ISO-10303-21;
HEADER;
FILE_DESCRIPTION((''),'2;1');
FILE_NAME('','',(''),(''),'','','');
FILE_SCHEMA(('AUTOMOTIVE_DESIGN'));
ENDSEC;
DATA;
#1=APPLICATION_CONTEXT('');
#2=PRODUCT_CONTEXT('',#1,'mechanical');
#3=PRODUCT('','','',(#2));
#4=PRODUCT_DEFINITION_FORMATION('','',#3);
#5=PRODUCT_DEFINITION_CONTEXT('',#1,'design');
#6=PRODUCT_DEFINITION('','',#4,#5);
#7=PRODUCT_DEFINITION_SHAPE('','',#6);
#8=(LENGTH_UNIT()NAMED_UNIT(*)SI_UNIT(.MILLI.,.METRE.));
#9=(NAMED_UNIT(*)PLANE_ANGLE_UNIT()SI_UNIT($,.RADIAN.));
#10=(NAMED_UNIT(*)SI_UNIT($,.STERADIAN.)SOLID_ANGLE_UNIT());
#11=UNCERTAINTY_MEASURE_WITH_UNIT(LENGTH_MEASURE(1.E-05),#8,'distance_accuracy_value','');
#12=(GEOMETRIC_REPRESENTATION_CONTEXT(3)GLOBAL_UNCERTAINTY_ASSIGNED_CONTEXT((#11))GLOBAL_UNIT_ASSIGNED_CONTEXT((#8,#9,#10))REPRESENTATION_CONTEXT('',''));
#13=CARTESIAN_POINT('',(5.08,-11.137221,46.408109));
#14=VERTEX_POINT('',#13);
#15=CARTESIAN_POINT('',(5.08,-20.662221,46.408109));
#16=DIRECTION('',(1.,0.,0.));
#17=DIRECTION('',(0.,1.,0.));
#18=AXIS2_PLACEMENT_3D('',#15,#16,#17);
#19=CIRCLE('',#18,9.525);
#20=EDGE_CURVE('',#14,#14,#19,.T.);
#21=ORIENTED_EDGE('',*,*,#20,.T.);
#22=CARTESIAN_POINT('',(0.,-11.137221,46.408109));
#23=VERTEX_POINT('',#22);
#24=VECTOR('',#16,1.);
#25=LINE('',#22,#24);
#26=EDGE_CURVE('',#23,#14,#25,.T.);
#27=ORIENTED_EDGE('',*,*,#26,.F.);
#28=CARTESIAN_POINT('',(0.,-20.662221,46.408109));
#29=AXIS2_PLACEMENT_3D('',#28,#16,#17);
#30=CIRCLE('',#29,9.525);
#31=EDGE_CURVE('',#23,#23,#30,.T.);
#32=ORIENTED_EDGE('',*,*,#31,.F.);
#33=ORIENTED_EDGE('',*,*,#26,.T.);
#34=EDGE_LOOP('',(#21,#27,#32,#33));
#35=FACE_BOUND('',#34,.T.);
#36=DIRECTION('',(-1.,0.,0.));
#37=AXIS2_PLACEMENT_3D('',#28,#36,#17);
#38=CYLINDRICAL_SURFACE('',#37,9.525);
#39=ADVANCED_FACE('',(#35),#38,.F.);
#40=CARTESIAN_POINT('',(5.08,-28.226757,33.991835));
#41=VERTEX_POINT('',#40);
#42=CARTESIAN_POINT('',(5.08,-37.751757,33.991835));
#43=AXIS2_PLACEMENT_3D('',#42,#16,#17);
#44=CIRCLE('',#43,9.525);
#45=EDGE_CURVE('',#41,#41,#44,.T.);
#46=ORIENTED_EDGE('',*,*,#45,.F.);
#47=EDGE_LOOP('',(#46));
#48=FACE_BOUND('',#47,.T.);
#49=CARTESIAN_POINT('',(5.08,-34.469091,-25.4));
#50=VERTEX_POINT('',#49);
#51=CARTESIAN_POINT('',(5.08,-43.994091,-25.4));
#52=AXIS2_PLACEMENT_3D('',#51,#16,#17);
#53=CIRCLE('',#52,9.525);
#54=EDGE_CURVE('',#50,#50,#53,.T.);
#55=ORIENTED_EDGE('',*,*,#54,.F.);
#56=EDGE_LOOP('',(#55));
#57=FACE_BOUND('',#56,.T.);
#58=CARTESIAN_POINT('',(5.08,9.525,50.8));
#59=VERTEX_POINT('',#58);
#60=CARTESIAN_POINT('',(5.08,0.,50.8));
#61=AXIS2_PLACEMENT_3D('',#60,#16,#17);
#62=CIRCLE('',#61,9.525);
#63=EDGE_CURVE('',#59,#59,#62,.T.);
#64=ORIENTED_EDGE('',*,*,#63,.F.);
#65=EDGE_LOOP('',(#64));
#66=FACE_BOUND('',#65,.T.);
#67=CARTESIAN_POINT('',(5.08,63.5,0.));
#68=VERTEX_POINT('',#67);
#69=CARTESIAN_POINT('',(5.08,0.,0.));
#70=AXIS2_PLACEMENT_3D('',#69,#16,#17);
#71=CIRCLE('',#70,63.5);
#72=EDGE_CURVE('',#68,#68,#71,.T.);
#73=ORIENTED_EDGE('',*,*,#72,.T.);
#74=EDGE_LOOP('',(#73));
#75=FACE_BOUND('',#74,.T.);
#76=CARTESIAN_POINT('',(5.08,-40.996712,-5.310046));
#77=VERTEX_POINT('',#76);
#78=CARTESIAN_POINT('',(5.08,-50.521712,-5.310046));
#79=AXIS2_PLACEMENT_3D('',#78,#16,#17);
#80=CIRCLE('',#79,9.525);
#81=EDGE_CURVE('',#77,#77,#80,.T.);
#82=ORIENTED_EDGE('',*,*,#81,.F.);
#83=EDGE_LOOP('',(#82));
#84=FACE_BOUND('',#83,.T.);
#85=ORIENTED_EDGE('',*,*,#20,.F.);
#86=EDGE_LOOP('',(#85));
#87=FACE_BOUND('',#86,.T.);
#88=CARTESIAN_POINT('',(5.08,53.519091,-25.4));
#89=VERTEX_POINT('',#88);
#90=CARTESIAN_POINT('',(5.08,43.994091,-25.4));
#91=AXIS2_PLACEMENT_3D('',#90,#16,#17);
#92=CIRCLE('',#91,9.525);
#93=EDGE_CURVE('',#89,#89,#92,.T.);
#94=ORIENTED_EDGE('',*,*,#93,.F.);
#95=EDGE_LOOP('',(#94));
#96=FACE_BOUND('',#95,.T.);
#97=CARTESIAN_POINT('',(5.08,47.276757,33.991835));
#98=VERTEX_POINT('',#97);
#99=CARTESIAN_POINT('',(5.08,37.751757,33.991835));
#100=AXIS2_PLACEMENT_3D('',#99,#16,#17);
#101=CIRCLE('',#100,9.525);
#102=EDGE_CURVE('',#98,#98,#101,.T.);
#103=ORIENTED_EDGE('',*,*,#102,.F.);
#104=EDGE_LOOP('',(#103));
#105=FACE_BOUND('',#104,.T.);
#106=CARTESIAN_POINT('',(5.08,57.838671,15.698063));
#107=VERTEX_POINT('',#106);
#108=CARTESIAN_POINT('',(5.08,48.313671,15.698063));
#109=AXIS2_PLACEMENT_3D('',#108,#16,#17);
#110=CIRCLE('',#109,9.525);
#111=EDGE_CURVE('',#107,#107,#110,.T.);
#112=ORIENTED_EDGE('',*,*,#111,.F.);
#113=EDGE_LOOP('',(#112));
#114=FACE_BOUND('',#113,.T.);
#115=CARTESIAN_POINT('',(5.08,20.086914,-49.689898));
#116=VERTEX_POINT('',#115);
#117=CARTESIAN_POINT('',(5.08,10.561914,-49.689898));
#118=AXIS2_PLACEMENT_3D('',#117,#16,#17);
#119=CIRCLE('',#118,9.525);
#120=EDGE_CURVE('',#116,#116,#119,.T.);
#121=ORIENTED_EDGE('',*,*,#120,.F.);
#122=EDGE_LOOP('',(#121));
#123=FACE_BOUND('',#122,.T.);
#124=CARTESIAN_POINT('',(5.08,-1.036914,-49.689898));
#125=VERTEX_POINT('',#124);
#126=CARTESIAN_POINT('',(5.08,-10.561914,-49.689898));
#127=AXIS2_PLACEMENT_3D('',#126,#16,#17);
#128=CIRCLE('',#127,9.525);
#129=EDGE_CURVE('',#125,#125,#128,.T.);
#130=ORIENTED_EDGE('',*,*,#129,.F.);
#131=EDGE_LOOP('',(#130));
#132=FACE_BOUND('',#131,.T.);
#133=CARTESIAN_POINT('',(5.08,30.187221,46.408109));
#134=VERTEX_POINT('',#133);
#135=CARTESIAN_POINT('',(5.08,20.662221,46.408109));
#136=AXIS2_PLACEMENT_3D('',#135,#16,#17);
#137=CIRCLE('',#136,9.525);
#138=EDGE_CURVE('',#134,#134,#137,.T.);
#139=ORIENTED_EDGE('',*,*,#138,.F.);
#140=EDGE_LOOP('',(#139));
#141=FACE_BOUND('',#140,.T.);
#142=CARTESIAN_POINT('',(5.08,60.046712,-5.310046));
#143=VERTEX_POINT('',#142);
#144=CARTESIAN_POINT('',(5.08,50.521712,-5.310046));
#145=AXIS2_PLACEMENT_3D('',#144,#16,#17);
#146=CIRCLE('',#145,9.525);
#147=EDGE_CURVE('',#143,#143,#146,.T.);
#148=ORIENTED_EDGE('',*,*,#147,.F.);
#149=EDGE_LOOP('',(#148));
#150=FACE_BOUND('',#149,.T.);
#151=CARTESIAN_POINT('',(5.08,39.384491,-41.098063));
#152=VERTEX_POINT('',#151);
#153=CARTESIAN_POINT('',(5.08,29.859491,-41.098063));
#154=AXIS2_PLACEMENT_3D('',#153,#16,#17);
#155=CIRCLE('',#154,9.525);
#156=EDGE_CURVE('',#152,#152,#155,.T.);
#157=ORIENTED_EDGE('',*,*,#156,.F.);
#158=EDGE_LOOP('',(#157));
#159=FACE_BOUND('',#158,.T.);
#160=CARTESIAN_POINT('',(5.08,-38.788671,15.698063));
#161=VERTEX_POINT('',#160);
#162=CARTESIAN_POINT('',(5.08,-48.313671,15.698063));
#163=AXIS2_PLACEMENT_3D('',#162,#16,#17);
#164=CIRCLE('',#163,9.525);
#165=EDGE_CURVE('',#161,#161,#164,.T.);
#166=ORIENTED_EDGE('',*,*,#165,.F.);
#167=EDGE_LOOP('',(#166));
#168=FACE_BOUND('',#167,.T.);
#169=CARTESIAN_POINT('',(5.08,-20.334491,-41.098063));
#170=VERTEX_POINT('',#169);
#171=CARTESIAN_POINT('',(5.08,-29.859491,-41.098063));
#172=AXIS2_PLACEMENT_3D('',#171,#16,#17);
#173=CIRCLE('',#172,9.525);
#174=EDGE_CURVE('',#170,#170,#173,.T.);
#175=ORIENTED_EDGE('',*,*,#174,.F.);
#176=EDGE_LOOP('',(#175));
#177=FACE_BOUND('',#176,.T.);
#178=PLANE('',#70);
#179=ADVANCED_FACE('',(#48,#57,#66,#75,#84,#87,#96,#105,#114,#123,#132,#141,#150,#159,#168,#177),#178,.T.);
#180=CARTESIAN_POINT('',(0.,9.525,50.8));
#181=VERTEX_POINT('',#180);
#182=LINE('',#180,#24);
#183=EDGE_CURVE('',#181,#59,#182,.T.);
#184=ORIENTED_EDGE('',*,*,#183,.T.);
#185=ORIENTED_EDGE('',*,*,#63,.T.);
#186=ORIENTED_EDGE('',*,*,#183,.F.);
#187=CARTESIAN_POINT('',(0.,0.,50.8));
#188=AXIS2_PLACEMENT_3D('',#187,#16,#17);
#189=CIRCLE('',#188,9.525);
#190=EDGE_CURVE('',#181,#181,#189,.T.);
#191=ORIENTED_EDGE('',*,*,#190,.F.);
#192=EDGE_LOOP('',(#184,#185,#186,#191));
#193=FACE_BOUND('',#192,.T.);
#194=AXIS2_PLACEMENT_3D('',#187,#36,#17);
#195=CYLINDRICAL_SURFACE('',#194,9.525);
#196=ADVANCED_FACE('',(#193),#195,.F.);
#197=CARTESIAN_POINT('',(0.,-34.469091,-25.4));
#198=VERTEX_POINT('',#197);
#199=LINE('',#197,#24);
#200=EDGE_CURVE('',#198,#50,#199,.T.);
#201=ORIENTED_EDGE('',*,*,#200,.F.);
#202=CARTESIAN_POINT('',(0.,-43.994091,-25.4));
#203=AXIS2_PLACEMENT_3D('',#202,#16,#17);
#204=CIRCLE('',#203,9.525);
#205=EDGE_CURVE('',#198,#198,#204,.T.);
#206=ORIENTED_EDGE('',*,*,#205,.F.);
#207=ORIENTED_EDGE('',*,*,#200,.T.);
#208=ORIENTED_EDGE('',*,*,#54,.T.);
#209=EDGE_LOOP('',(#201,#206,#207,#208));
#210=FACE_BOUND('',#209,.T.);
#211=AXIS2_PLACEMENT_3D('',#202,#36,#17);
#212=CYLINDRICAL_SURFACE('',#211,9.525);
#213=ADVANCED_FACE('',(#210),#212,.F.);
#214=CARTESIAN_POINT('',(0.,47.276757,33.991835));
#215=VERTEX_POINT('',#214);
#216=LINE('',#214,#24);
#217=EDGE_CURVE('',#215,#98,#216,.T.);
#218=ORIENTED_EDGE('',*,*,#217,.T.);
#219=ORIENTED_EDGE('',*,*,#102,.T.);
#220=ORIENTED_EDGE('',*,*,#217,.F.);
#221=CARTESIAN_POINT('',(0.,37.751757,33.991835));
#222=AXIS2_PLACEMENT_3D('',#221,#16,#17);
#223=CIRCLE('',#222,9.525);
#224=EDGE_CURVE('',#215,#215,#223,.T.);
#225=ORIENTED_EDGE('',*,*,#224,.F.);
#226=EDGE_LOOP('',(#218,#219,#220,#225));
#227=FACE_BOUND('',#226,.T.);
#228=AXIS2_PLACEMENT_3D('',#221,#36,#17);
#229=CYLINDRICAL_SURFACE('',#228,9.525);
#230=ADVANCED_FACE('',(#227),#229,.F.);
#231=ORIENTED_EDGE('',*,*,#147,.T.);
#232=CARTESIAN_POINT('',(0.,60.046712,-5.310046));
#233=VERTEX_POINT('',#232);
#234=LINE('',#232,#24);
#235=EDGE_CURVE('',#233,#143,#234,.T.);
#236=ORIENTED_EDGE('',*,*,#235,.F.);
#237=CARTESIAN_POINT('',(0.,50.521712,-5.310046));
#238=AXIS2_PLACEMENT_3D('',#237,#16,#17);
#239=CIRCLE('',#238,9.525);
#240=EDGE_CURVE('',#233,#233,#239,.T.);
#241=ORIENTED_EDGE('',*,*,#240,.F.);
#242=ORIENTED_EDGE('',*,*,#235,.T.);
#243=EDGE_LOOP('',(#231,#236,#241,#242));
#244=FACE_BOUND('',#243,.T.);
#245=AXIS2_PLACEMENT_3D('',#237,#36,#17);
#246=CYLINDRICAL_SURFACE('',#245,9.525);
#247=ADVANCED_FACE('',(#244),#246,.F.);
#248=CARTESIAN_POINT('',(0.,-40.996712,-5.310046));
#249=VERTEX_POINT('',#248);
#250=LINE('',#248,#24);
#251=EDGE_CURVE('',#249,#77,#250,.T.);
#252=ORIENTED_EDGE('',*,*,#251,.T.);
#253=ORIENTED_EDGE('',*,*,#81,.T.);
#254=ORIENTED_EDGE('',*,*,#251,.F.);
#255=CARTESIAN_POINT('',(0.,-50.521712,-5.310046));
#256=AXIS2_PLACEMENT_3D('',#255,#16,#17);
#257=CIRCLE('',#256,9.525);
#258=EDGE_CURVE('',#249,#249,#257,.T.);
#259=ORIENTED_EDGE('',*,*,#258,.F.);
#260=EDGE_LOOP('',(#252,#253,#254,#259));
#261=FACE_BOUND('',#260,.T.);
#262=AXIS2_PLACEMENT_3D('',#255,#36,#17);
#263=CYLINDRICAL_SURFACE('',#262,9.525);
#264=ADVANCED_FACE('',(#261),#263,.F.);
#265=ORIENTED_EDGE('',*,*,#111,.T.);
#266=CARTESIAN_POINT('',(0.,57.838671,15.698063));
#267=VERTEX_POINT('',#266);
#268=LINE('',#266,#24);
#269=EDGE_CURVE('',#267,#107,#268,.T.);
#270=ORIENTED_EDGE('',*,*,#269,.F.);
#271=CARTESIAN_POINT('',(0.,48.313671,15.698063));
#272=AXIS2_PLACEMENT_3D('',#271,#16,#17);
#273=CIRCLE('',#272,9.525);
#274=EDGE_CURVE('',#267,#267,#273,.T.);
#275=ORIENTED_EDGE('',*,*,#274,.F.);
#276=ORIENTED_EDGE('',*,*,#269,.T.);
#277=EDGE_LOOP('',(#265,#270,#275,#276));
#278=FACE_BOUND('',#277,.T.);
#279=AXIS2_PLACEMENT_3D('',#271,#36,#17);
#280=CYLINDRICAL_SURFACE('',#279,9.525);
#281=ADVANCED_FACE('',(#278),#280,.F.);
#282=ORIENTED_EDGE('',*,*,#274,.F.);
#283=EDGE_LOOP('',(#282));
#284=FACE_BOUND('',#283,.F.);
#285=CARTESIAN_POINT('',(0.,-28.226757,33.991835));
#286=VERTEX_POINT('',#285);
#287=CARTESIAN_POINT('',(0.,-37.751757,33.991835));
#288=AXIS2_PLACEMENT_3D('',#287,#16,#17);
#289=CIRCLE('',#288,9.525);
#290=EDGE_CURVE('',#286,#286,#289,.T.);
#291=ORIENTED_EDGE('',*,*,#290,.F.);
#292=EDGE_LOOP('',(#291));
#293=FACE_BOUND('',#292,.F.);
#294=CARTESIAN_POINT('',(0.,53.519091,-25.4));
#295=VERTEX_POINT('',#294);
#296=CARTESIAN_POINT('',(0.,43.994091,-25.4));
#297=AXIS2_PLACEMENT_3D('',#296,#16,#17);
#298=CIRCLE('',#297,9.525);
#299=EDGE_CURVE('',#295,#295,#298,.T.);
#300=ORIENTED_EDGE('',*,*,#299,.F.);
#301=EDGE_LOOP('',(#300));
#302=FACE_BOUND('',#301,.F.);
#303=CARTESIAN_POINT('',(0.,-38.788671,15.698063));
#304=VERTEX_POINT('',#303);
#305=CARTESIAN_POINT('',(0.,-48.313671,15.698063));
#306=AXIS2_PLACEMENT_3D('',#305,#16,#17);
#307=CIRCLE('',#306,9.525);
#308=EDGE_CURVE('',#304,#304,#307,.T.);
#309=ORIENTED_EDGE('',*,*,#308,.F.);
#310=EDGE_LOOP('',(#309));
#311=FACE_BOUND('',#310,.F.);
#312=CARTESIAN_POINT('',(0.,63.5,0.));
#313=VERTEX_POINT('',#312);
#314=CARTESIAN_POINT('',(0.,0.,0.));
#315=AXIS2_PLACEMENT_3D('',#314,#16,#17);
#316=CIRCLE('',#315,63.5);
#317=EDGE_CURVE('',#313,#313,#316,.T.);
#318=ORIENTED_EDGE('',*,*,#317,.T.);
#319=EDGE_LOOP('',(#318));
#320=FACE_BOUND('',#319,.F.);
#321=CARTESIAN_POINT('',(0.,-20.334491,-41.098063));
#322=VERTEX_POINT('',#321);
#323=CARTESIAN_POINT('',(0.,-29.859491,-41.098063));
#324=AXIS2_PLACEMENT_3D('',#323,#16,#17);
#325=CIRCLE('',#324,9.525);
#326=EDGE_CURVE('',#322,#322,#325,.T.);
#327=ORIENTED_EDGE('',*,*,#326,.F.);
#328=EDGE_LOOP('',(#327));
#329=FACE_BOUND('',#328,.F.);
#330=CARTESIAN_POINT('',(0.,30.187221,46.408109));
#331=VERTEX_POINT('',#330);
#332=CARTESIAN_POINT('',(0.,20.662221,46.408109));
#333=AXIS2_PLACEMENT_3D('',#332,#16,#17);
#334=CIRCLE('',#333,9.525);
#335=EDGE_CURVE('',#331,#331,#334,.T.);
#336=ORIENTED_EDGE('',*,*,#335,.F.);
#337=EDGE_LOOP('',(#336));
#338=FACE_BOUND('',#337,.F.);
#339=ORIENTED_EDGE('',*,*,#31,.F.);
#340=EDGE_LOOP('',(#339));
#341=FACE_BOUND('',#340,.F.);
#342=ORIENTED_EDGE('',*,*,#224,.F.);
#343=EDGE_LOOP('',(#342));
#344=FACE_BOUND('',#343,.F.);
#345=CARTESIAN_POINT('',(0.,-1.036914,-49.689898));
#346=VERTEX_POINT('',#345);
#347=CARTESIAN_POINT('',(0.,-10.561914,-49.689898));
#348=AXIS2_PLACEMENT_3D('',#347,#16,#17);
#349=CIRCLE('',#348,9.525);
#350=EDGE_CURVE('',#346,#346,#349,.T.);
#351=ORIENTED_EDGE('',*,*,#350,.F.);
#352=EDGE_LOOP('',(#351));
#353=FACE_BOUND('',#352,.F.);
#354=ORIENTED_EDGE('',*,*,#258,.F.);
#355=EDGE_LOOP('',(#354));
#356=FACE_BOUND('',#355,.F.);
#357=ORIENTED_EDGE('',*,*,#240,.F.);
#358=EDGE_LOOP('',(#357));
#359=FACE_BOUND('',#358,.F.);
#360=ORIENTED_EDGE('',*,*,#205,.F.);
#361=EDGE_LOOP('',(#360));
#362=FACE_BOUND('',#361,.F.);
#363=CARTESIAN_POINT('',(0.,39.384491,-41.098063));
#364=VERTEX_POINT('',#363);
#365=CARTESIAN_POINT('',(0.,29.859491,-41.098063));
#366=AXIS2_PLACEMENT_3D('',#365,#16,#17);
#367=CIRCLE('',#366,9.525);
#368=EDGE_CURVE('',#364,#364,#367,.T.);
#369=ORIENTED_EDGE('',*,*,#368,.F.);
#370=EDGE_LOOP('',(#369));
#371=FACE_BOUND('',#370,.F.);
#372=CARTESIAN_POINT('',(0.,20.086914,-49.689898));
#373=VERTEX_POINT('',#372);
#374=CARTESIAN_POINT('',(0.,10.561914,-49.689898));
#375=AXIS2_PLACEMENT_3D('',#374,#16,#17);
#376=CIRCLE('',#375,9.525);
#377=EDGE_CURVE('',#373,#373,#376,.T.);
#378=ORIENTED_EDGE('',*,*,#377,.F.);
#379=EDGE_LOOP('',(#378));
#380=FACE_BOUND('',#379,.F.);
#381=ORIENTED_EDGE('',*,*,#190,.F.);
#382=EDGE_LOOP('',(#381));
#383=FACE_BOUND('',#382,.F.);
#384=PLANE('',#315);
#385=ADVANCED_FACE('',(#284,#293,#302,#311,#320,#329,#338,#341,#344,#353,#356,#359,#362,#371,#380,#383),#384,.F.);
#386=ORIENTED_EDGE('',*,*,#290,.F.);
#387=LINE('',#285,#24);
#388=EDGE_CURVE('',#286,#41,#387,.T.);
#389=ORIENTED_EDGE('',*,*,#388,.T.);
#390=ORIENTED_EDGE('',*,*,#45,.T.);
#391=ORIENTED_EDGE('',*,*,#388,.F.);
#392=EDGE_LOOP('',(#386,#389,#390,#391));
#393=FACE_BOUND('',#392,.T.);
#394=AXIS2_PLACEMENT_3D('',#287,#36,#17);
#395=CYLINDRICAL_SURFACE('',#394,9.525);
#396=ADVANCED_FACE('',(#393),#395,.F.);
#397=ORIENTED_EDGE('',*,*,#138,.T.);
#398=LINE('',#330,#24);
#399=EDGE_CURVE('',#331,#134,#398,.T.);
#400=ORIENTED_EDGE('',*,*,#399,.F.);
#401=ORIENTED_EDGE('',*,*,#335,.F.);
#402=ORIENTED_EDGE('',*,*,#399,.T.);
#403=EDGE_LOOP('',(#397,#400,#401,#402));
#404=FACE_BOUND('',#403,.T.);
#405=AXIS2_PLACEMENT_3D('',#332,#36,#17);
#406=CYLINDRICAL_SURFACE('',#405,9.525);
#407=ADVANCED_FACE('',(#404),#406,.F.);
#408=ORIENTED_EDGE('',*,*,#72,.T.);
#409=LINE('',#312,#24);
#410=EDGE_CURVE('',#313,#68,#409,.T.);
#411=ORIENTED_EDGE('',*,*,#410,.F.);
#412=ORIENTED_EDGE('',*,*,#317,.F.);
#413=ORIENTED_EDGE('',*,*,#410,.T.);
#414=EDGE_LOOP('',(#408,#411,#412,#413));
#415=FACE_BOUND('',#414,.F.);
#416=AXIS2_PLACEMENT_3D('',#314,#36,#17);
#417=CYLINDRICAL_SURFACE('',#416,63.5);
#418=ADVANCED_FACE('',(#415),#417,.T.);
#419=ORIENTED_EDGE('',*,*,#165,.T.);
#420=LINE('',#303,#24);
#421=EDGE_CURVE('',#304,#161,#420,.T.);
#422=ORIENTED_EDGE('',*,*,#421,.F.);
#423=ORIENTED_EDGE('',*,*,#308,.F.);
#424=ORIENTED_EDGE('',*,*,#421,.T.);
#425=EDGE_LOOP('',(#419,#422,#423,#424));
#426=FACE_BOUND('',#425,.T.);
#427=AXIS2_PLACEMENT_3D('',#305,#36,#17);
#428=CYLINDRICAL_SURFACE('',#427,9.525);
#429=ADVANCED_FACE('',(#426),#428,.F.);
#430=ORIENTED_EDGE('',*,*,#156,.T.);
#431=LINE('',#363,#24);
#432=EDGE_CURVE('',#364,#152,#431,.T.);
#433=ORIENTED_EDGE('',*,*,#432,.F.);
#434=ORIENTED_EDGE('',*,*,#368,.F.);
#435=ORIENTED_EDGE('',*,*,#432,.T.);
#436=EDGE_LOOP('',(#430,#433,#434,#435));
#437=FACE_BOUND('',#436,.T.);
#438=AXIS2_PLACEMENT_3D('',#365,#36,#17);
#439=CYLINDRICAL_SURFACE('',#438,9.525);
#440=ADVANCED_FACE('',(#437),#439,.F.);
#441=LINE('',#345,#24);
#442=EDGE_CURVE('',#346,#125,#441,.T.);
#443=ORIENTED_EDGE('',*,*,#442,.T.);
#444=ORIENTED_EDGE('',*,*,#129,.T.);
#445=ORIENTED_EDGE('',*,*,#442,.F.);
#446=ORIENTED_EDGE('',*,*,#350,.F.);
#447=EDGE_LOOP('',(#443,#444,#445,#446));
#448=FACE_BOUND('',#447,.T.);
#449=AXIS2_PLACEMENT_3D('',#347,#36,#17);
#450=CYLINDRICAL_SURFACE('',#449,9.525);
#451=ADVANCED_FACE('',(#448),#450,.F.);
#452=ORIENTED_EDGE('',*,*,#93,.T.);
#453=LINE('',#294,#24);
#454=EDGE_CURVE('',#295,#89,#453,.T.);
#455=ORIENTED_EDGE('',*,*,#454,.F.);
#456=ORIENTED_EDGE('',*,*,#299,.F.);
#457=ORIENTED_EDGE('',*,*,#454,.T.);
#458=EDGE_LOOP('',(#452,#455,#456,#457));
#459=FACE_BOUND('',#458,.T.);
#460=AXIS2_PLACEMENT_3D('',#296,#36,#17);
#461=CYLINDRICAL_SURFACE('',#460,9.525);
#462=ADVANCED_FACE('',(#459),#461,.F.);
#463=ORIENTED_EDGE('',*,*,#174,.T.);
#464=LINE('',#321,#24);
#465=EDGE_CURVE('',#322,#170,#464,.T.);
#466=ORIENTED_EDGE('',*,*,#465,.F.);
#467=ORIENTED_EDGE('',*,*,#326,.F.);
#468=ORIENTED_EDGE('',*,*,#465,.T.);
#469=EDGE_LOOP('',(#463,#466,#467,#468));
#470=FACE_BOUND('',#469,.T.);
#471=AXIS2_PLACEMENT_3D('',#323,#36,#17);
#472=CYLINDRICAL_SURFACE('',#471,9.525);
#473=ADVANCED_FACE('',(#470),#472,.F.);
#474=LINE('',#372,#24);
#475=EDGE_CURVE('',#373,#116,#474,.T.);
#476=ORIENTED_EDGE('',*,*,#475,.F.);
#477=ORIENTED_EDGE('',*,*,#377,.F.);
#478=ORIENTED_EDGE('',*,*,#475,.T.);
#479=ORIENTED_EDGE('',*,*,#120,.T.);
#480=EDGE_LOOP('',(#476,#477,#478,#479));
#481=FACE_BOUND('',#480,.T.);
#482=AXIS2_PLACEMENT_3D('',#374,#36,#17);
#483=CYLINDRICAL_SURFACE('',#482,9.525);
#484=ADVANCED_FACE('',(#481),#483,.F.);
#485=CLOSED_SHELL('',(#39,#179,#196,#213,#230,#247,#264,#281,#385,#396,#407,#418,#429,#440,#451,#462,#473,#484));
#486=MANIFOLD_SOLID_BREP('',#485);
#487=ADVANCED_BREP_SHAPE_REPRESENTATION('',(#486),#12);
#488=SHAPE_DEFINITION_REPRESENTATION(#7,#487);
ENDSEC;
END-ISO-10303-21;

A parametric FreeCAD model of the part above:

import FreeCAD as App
import Part
import Sketcher
from FreeCAD import Vector
Q = App.Units.Quantity

doc = App.newDocument("Part")
body = doc.addObject("PartDesign::Body", "Body")

sketch1 = body.newObject("Sketcher::SketchObject", "Sketch")
sketch1.AttachmentSupport = (doc.getObject("YZ_Plane"), [""])
sketch1.MapMode = "FlatFace"
sketch1.addGeometry([
    Part.Circle(Vector(0, 0, 0), Vector(0, 0, 1), 64),
    Part.Circle(Vector(-11, -50, 0), Vector(0, 0, 1), 10),
    Part.Circle(Vector(-30, -41, 0), Vector(0, 0, 1), 10),
    Part.Circle(Vector(-44, -25, 0), Vector(0, 0, 1), 10),
    Part.Circle(Vector(-51, -5, 0), Vector(0, 0, 1), 10),
    Part.Circle(Vector(11, -50, 0), Vector(0, 0, 1), 10),
    Part.Circle(Vector(30, -41, 0), Vector(0, 0, 1), 10),
    Part.Circle(Vector(44, -25, 0), Vector(0, 0, 1), 10),
    Part.Circle(Vector(51, -5, 0), Vector(0, 0, 1), 10),
    Part.Circle(Vector(-48, 16, 0), Vector(0, 0, 1), 10),
    Part.Circle(Vector(-38, 34, 0), Vector(0, 0, 1), 10),
    Part.Circle(Vector(-21, 46, 0), Vector(0, 0, 1), 10),
    Part.Circle(Vector(48, 16, 0), Vector(0, 0, 1), 10),
    Part.Circle(Vector(0, 51, 0), Vector(0, 0, 1), 10),
    Part.Circle(Vector(21, 46, 0), Vector(0, 0, 1), 10),
    Part.Circle(Vector(38, 34, 0), Vector(0, 0, 1), 10),
], False)
sketch1.addConstraint([
    Sketcher.Constraint("Coincident", 0, 3, -1, 1),
    Sketcher.Constraint("Equal", 1, 2),
    Sketcher.Constraint("Equal", 2, 3),
    Sketcher.Constraint("Equal", 3, 4),
    Sketcher.Constraint("Equal", 4, 5),
    Sketcher.Constraint("Equal", 5, 6),
    Sketcher.Constraint("Equal", 6, 7),
    Sketcher.Constraint("Equal", 7, 8),
    Sketcher.Constraint("Equal", 8, 9),
    Sketcher.Constraint("Equal", 9, 10),
    Sketcher.Constraint("Equal", 10, 11),
    Sketcher.Constraint("Equal", 11, 12),
    Sketcher.Constraint("Equal", 12, 13),
    Sketcher.Constraint("Equal", 13, 14),
    Sketcher.Constraint("Equal", 14, 15),
    Sketcher.Constraint("Symmetric", 1, 3, 5, 3, -2),
    Sketcher.Constraint("Symmetric", 2, 3, 6, 3, -2),
    Sketcher.Constraint("Symmetric", 3, 3, 7, 3, -2),
    Sketcher.Constraint("Symmetric", 4, 3, 8, 3, -2),
    Sketcher.Constraint("Symmetric", 9, 3, 12, 3, -2),
    Sketcher.Constraint("Symmetric", 11, 3, 14, 3, -2),
    Sketcher.Constraint("Symmetric", 10, 3, 15, 3, -2),
    Sketcher.Constraint("PointOnObject", 13, 3, -2),
    Sketcher.Constraint("Diameter", 0, Q("5 in")),
    Sketcher.Constraint("Diameter", 1, Q("0.75 in")),
    Sketcher.Constraint("DistanceY", 3, 3, -1, 1, Q("1 in")),
    Sketcher.Constraint("DistanceY", -1, 1, 13, 3, Q("2 in")),
    Sketcher.Constraint("DistanceX", 3, 3, 2, 3, 14.1346),
    Sketcher.Constraint("DistanceY", 1, 3, 3, 3, 24.289898),
    Sketcher.Constraint("DistanceY", 2, 3, 10, 3, 75.089898),
    Sketcher.Constraint("DistanceX", 2, 3, -1, 1, 29.859491),
    Sketcher.Constraint("DistanceX", 9, 3, -1, 1, 48.313671),
    Sketcher.Constraint("DistanceX", 11, 3, -1, 1, 20.662221),
    Sketcher.Constraint("DistanceY", -1, 1, 11, 3, 46.408109),
    Sketcher.Constraint("DistanceX", 4, 3, 3, 3, 6.527621),
    Sketcher.Constraint("DistanceY", 4, 3, 9, 3, 21.008109),
    Sketcher.Constraint("DistanceY", 1, 3, 9, 3, 65.387961),
    Sketcher.Constraint("DistanceY", 4, 3, 10, 3, 39.301881),
    Sketcher.Constraint("DistanceX", 1, 3, -1, 1, 10.561914),
    Sketcher.Constraint("DistanceX", 10, 3, -1, 1, 37.751757),
])
pad1 = body.newObject("PartDesign::Pad", "Pad")
pad1.Profile = sketch1
pad1.Length = Q("0.2 in")

doc.recompute()
